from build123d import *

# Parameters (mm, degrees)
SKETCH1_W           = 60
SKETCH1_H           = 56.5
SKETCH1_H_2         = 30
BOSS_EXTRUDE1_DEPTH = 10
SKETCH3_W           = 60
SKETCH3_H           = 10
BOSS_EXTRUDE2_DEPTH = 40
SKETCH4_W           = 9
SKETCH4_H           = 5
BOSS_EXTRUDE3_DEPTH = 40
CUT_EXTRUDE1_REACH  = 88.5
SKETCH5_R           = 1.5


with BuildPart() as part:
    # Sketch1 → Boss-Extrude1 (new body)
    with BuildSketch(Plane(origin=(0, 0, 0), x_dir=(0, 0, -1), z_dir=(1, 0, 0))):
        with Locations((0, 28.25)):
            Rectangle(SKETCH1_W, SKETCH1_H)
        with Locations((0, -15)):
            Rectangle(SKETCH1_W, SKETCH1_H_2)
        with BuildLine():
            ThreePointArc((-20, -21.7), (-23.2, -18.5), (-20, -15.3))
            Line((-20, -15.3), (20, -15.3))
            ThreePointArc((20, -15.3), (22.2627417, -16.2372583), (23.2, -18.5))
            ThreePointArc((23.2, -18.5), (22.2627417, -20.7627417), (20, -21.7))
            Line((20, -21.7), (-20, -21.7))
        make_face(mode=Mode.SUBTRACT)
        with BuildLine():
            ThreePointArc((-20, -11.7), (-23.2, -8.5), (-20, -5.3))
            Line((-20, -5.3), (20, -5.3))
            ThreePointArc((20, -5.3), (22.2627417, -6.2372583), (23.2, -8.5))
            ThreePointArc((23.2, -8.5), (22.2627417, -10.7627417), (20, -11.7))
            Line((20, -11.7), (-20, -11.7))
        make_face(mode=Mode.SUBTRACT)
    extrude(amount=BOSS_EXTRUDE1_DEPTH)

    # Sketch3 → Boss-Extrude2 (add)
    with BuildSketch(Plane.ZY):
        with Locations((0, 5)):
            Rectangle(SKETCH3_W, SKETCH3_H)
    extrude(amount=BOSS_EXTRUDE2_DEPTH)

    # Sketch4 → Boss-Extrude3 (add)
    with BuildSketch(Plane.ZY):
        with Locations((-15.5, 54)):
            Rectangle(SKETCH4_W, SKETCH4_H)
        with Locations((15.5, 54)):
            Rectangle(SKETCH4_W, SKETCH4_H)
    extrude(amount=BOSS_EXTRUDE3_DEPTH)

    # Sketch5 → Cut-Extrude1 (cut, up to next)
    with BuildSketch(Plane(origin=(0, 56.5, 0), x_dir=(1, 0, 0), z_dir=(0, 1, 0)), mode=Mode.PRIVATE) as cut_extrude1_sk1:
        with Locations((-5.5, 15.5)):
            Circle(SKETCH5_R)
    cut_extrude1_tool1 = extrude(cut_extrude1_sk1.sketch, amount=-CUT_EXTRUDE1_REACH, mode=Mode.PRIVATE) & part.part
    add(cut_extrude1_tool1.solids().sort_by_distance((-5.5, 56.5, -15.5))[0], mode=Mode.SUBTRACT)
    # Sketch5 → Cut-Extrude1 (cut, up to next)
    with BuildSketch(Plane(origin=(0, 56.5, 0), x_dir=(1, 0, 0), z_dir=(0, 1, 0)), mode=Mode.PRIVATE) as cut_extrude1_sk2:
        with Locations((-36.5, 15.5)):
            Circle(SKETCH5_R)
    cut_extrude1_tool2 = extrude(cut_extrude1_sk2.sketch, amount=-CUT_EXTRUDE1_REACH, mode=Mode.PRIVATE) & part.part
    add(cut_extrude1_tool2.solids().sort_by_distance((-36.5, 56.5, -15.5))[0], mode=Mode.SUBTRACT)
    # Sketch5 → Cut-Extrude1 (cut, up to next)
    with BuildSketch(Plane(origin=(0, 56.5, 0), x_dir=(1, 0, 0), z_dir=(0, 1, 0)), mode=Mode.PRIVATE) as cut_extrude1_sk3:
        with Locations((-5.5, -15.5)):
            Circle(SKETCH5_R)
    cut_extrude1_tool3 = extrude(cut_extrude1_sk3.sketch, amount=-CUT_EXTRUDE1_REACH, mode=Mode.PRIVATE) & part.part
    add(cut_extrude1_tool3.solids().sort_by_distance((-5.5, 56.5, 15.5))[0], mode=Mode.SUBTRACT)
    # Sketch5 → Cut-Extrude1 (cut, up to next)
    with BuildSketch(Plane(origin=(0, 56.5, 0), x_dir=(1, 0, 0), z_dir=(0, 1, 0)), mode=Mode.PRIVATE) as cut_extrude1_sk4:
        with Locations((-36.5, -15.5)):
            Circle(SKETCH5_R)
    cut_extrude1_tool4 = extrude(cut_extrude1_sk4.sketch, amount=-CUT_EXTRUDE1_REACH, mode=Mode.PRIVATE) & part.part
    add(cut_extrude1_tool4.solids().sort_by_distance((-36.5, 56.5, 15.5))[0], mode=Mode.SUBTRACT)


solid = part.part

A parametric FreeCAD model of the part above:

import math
import FreeCAD as App
import Part
import Sketcher

V = App.Vector


def add_polygon(sketch, points):
    """Adds a closed chain of lines whose ends are joined by coincident constraints."""
    first, n = sketch.GeometryCount, len(points)
    for a, b in zip(points, points[1:] + points[:1]):
        sketch.addGeometry(Part.LineSegment(App.Vector(*a, 0), App.Vector(*b, 0)), False)
    for i in range(n):
        sketch.addConstraint(Sketcher.Constraint("Coincident", first + i, 2, first + (i + 1) % n, 1))

doc = App.newDocument("Part")
body = doc.addObject("PartDesign::Body", "Body")

# Sketch on YZ plane
sketch1 = doc.addObject("Sketcher::SketchObject", "Sketch")
body.addObject(sketch1)
sketch1.AttachmentSupport = (doc.YZ_Plane, [""])
sketch1.MapMode = "FlatFace"
add_polygon(sketch1, [(56.5, 30), (-30, 30), (-30, -30), (56.5, -30)])  # lines 0-3
sketch1.addGeometry(Part.LineSegment(V(-21.7, -20, 0), V(-21.7, 20, 0)), False)  # 4
sketch1.addGeometry(Part.ArcOfCircle(Part.Circle(V(-18.5, 20, 0), V(0, 0, 1), 3.2), math.radians(0), math.radians(180)), False)  # 5
sketch1.addGeometry(Part.LineSegment(V(-15.3, 20, 0), V(-15.3, -20, 0)), False)  # 6
sketch1.addGeometry(Part.ArcOfCircle(Part.Circle(V(-18.5, -20, 0), V(0, 0, 1), 3.2), math.radians(-90), math.radians(0)), False)  # 7
sketch1.addGeometry(Part.ArcOfCircle(Part.Circle(V(-18.5, -20, 0), V(0, 0, 1), 3.2), math.radians(180), math.radians(270)), False)  # 8
sketch1.addGeometry(Part.LineSegment(V(-11.7, -20, 0), V(-11.7, 20, 0)), False)  # 9
sketch1.addGeometry(Part.ArcOfCircle(Part.Circle(V(-8.5, 20, 0), V(0, 0, 1), 3.2), math.radians(0), math.radians(180)), False)  # 10
sketch1.addGeometry(Part.LineSegment(V(-5.3, 20, 0), V(-5.3, -20, 0)), False)  # 11
sketch1.addGeometry(Part.ArcOfCircle(Part.Circle(V(-8.5, -20, 0), V(0, 0, 1), 3.2), math.radians(-90), math.radians(0)), False)  # 12
sketch1.addGeometry(Part.ArcOfCircle(Part.Circle(V(-8.5, -20, 0), V(0, 0, 1), 3.2), math.radians(180), math.radians(270)), False)  # 13
sketch1.addConstraint(Sketcher.Constraint("Tangent", 4, 2, 5, 2))
sketch1.addConstraint(Sketcher.Constraint("Tangent", 5, 1, 6, 1))
sketch1.addConstraint(Sketcher.Constraint("Tangent", 6, 2, 7, 2))
sketch1.addConstraint(Sketcher.Constraint("Tangent", 7, 1, 8, 2))
sketch1.addConstraint(Sketcher.Constraint("Tangent", 8, 1, 4, 1))
sketch1.addConstraint(Sketcher.Constraint("Tangent", 9, 2, 10, 2))
sketch1.addConstraint(Sketcher.Constraint("Tangent", 10, 1, 11, 1))
sketch1.addConstraint(Sketcher.Constraint("Tangent", 11, 2, 12, 2))
sketch1.addConstraint(Sketcher.Constraint("Tangent", 12, 1, 13, 2))
sketch1.addConstraint(Sketcher.Constraint("Tangent", 13, 1, 9, 1))
sketch1.addConstraint(Sketcher.Constraint("Horizontal", 0))
sketch1.addConstraint(Sketcher.Constraint("Vertical", 1))
sketch1.addConstraint(Sketcher.Constraint("Horizontal", 2))
sketch1.addConstraint(Sketcher.Constraint("Vertical", 3))
sketch1.addConstraint(Sketcher.Constraint("Vertical", 4))
sketch1.addConstraint(Sketcher.Constraint("Vertical", 6))
sketch1.addConstraint(Sketcher.Constraint("Vertical", 9))
sketch1.addConstraint(Sketcher.Constraint("Vertical", 11))
sketch1.addConstraint(Sketcher.Constraint("Equal", 5, 7))
sketch1.addConstraint(Sketcher.Constraint("Equal", 8, 10))
sketch1.addConstraint(Sketcher.Constraint("Equal", 10, 12))
sketch1.addConstraint(Sketcher.Constraint("Horizontal", 5, 3, 10, 3))
sketch1.addConstraint(Sketcher.Constraint("Horizontal", 8, 3, 12, 3))
sketch1.addConstraint(Sketcher.Constraint("Vertical", 8, 3, 7, 1))
sketch1.addConstraint(Sketcher.Constraint("Vertical", 13, 3, 12, 1))
sketch1.addConstraint(Sketcher.Constraint("Radius", 5, 3.2))
sketch1.addConstraint(Sketcher.Constraint("DistanceY", 1, 2, 1, 1, 60.0))
sketch1.addConstraint(Sketcher.Constraint("DistanceY", 4, 1, 4, 2, 40.0))
sketch1.addConstraint(Sketcher.Constraint("DistanceX", 0, 2, 0, 1, 86.5))
sketch1.addConstraint(Sketcher.Constraint("DistanceY", -1, 1, 5, 3, 20.0))
sketch1.addConstraint(Sketcher.Constraint("DistanceX", 0, 2, -1, 1, 30.0))
sketch1.addConstraint(Sketcher.Constraint("DistanceY", -1, 1, 0, 2, 30.0))
sketch1.addConstraint(Sketcher.Constraint("DistanceX", 5, 3, 10, 3, 10.0))
sketch1.addConstraint(Sketcher.Constraint("DistanceX", 12, 3, 2, 2, 65.0))
pad1 = doc.addObject("PartDesign::Pad", "Pad")
body.addObject(pad1)
pad1.Profile = sketch1
pad1.Length = 10

# Sketch on YZ plane
sketch2 = doc.addObject("Sketcher::SketchObject", "Sketch001")
body.addObject(sketch2)
sketch2.AttachmentSupport = (doc.YZ_Plane, [""])
sketch2.MapMode = "FlatFace"
add_polygon(sketch2, [(10, -30), (0, -30), (0, 30), (10, 30)])  # lines 0-3
sketch2.addConstraint(Sketcher.Constraint("Horizontal", 0))
sketch2.addConstraint(Sketcher.Constraint("Vertical", 1))
sketch2.addConstraint(Sketcher.Constraint("Horizontal", 2))
sketch2.addConstraint(Sketcher.Constraint("Vertical", 3))
sketch2.addConstraint(Sketcher.Constraint("Symmetric", 0, 2, 1, 2, -1, 1))
sketch2.addConstraint(Sketcher.Constraint("DistanceX", 0, 2, 0, 1, 10.0))
sketch2.addConstraint(Sketcher.Constraint("DistanceY", 1, 1, 1, 2, 60.0))
pad2 = doc.addObject("PartDesign::Pad", "Pad001")
body.addObject(pad2)
pad2.Profile = sketch2
pad2.Length = 40
pad2.Reversed = True

# Sketch on YZ plane
sketch3 = doc.addObject("Sketcher::SketchObject", "Sketch002")
body.addObject(sketch3)
sketch3.AttachmentSupport = (doc.YZ_Plane, [""])
sketch3.MapMode = "FlatFace"
add_polygon(sketch3, [(56, -20), (52, -20), (52, -11), (56, -11)])  # lines 0-3
add_polygon(sketch3, [(56, 11), (52, 11), (52, 20), (56, 20)])  # lines 4-7
sketch3.addConstraint(Sketcher.Constraint("Horizontal", 0))
sketch3.addConstraint(Sketcher.Constraint("Vertical", 1))
sketch3.addConstraint(Sketcher.Constraint("Horizontal", 2))
sketch3.addConstraint(Sketcher.Constraint("Vertical", 3))
sketch3.addConstraint(Sketcher.Constraint("Horizontal", 4))
sketch3.addConstraint(Sketcher.Constraint("Vertical", 5))
sketch3.addConstraint(Sketcher.Constraint("Horizontal", 6))
sketch3.addConstraint(Sketcher.Constraint("Vertical", 7))
sketch3.addConstraint(Sketcher.Constraint("Symmetric", 1, 2, 4, 2, -1))
sketch3.addConstraint(Sketcher.Constraint("Symmetric", 3, 2, 6, 2, -1))
sketch3.addConstraint(Sketcher.Constraint("DistanceX", 0, 2, 0, 1, 5.0))
sketch3.addConstraint(Sketcher.Constraint("DistanceY", 1, 1, 1, 2, 9.0))
sketch3.addConstraint(Sketcher.Constraint("DistanceY", 0, 2, -1, 1, 20.0))
sketch3.addConstraint(Sketcher.Constraint("DistanceX", -1, 1, 0, 2, 51.5))
pad3 = doc.addObject("PartDesign::Pad", "Pad002")
body.addObject(pad3)
pad3.Profile = sketch3
pad3.Length = 40
pad3.Reversed = True

# Sketch on XZ plane
sketch4 = doc.addObject("Sketcher::SketchObject", "Sketch003")
body.addObject(sketch4)
sketch4.AttachmentSupport = (doc.XZ_Plane, [""])
sketch4.MapMode = "FlatFace"
sketch4.AttachmentOffset = App.Placement(V(0, 0, -56.5), App.Rotation())
sketch4.addGeometry(Part.Circle(V(-5.5, -15.5, 0), V(0, 0, 1), 1.5), False)
sketch4.addConstraint(Sketcher.Constraint("Diameter", 0, 3.0))
sketch4.addConstraint(Sketcher.Constraint("DistanceX", 0, 3, -1, 1, 5.5))
sketch4.addConstraint(Sketcher.Constraint("DistanceY", 0, 3, -1, 1, 15.5))
pocket1 = doc.addObject("PartDesign::Pocket", "Pocket")
body.addObject(pocket1)
pocket1.Profile = sketch4
pocket1.Type = "UpToFirst"
pocket1.Reversed = True

# Sketch on XZ plane
sketch5 = doc.addObject("Sketcher::SketchObject", "Sketch004")
body.addObject(sketch5)
sketch5.AttachmentSupport = (doc.XZ_Plane, [""])
sketch5.MapMode = "FlatFace"
sketch5.AttachmentOffset = App.Placement(V(0, 0, -56.5), App.Rotation())
sketch5.addGeometry(Part.Circle(V(-36.5, -15.5, 0), V(0, 0, 1), 1.5), False)
sketch5.addConstraint(Sketcher.Constraint("Diameter", 0, 3.0))
sketch5.addConstraint(Sketcher.Constraint("DistanceX", 0, 3, -1, 1, 36.5))
sketch5.addConstraint(Sketcher.Constraint("DistanceY", 0, 3, -1, 1, 15.5))
pocket2 = doc.addObject("PartDesign::Pocket", "Pocket001")
body.addObject(pocket2)
pocket2.Profile = sketch5
pocket2.Type = "UpToFirst"
pocket2.Reversed = True

# Sketch on XZ plane
sketch6 = doc.addObject("Sketcher::SketchObject", "Sketch005")
body.addObject(sketch6)
sketch6.AttachmentSupport = (doc.XZ_Plane, [""])
sketch6.MapMode = "FlatFace"
sketch6.AttachmentOffset = App.Placement(V(0, 0, -56.5), App.Rotation())
sketch6.addGeometry(Part.Circle(V(-5.5, 15.5, 0), V(0, 0, 1), 1.5), False)
sketch6.addConstraint(Sketcher.Constraint("Diameter", 0, 3.0))
sketch6.addConstraint(Sketcher.Constraint("DistanceX", 0, 3, -1, 1, 5.5))
sketch6.addConstraint(Sketcher.Constraint("DistanceY", -1, 1, 0, 3, 15.5))
pocket3 = doc.addObject("PartDesign::Pocket", "Pocket002")
body.addObject(pocket3)
pocket3.Profile = sketch6
pocket3.Type = "UpToFirst"
pocket3.Reversed = True

# Sketch on XZ plane
sketch7 = doc.addObject("Sketcher::SketchObject", "Sketch006")
body.addObject(sketch7)
sketch7.AttachmentSupport = (doc.XZ_Plane, [""])
sketch7.MapMode = "FlatFace"
sketch7.AttachmentOffset = App.Placement(V(0, 0, -56.5), App.Rotation())
sketch7.addGeometry(Part.Circle(V(-36.5, 15.5, 0), V(0, 0, 1), 1.5), False)
sketch7.addConstraint(Sketcher.Constraint("Diameter", 0, 3.0))
sketch7.addConstraint(Sketcher.Constraint("DistanceX", 0, 3, -1, 1, 36.5))
sketch7.addConstraint(Sketcher.Constraint("DistanceY", -1, 1, 0, 3, 15.5))
pocket4 = doc.addObject("PartDesign::Pocket", "Pocket003")
body.addObject(pocket4)
pocket4.Profile = sketch7
pocket4.Type = "UpToFirst"
pocket4.Reversed = True

doc.recompute()
